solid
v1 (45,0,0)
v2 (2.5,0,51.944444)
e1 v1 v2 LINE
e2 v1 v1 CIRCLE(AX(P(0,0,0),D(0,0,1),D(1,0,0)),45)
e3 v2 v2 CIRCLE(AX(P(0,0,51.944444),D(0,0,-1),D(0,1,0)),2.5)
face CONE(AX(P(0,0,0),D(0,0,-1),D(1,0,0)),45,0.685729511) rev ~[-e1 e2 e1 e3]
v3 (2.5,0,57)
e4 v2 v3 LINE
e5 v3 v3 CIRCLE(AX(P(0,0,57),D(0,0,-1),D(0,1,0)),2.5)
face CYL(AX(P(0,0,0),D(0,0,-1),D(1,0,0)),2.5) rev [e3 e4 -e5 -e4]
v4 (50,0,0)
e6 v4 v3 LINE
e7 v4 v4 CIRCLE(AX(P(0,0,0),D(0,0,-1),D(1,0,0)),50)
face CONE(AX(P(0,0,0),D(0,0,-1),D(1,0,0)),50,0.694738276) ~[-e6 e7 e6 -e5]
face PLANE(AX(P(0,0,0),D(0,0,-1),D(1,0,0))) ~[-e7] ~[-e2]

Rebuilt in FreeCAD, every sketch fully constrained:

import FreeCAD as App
import Part
import Sketcher

doc = App.newDocument("Part")
body = doc.addObject("PartDesign::Body", "Body")

sketch1 = doc.addObject("Sketcher::SketchObject", "Sketch")
body.addObject(sketch1)
sketch1.AttachmentSupport = (doc.XZ_Plane, [""])
sketch1.MapMode = "FlatFace"
sketch1.addGeometry([
    Part.LineSegment(App.Vector(50, 0, 0), App.Vector(0, 60, 0)),
    Part.LineSegment(App.Vector(0, 60, 0), App.Vector(0, 0, 0)),
    Part.LineSegment(App.Vector(0, 0, 0), App.Vector(50, 0, 0)),
], False)
sketch1.addConstraint([
    Sketcher.Constraint("Coincident", 0, 2, 1, 1),
    Sketcher.Constraint("Coincident", 1, 2, 2, 1),
    Sketcher.Constraint("Coincident", 2, 2, 0, 1),
    Sketcher.Constraint("Vertical", 1),
    Sketcher.Constraint("Horizontal", 2),
    Sketcher.Constraint("Coincident", 1, 2, -1, 1),
    Sketcher.Constraint("DistanceX", 2, 1, 2, 2, 50.0),
    Sketcher.Constraint("DistanceY", 1, 2, 1, 1, 60.0),
])
revolution = doc.addObject("PartDesign::Revolution", "Revolution")
body.addObject(revolution)
revolution.Profile = sketch1
revolution.ReferenceAxis = (sketch1, ["V_Axis"])
revolution.Angle = 360

sketch2 = doc.addObject("Sketcher::SketchObject", "Sketch001")
body.addObject(sketch2)
sketch2.AttachmentSupport = (doc.XY_Plane, [""])
sketch2.MapMode = "FlatFace"
sketch2.addGeometry(Part.Circle(App.Vector(0, 0, 0), App.Vector(0, 0, 1), 2.5), False)
sketch2.addConstraint([
    Sketcher.Constraint("Coincident", 0, 3, -1, 1),
    Sketcher.Constraint("Diameter", 0, 5.0),
])
pocket1 = doc.addObject("PartDesign::Pocket", "Pocket")
body.addObject(pocket1)
pocket1.Profile = sketch2
pocket1.Length = 60
pocket1.Reversed = True

sketch3 = doc.addObject("Sketcher::SketchObject", "Sketch002")
body.addObject(sketch3)
sketch3.AttachmentSupport = (doc.XZ_Plane, [""])
sketch3.MapMode = "FlatFace"
sketch3.addGeometry([
    Part.LineSegment(App.Vector(0, 55, 0), App.Vector(0, 0, 0)),
    Part.LineSegment(App.Vector(0, 0, 0), App.Vector(45, 0, 0)),
    Part.LineSegment(App.Vector(45, 0, 0), App.Vector(0, 55, 0)),
], False)
sketch3.addConstraint([
    Sketcher.Constraint("Coincident", 0, 2, 1, 1),
    Sketcher.Constraint("Coincident", 1, 2, 2, 1),
    Sketcher.Constraint("Coincident", 2, 2, 0, 1),
    Sketcher.Constraint("Vertical", 0),
    Sketcher.Constraint("Horizontal", 1),
    Sketcher.Constraint("Coincident", 0, 2, -1, 1),
    Sketcher.Constraint("DistanceX", 1, 1, 1, 2, 45.0),
    Sketcher.Constraint("DistanceY", 0, 2, 0, 1, 55.0),
])
groove = doc.addObject("PartDesign::Groove", "Groove")
body.addObject(groove)
groove.Profile = sketch3
groove.ReferenceAxis = (sketch3, ["V_Axis"])
groove.Angle = 360

doc.recompute()
